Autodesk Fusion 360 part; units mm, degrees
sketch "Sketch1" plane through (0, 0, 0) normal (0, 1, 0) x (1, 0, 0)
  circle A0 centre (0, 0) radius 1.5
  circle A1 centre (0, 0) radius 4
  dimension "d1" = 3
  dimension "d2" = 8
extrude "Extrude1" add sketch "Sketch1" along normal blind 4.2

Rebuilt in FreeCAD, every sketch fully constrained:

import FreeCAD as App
import Part
import Sketcher

V = App.Vector

doc = App.newDocument("Part")
body = doc.addObject("PartDesign::Body", "Body")

# Sketch on XZ plane
sketch1 = doc.addObject("Sketcher::SketchObject", "Sketch")
body.addObject(sketch1)
sketch1.AttachmentSupport = (doc.XZ_Plane, [""])
sketch1.MapMode = "FlatFace"
sketch1.addGeometry([
    Part.Circle(V(0, 0, 0), V(0, 0, 1), 4),
    Part.Circle(V(0, 0, 0), V(0, 0, 1), 1.5),
], False)
sketch1.addConstraint([
    Sketcher.Constraint("Coincident", 0, 3, -1, 1),
    Sketcher.Constraint("Coincident", 1, 3, -1, 1),
    Sketcher.Constraint("Diameter", 0, 8.0),
    Sketcher.Constraint("Diameter", 1, 3.0),
])
pad1 = doc.addObject("PartDesign::Pad", "Pad")
body.addObject(pad1)
pad1.Profile = sketch1
pad1.Length = 4.2
pad1.Reversed = True

doc.recompute()
